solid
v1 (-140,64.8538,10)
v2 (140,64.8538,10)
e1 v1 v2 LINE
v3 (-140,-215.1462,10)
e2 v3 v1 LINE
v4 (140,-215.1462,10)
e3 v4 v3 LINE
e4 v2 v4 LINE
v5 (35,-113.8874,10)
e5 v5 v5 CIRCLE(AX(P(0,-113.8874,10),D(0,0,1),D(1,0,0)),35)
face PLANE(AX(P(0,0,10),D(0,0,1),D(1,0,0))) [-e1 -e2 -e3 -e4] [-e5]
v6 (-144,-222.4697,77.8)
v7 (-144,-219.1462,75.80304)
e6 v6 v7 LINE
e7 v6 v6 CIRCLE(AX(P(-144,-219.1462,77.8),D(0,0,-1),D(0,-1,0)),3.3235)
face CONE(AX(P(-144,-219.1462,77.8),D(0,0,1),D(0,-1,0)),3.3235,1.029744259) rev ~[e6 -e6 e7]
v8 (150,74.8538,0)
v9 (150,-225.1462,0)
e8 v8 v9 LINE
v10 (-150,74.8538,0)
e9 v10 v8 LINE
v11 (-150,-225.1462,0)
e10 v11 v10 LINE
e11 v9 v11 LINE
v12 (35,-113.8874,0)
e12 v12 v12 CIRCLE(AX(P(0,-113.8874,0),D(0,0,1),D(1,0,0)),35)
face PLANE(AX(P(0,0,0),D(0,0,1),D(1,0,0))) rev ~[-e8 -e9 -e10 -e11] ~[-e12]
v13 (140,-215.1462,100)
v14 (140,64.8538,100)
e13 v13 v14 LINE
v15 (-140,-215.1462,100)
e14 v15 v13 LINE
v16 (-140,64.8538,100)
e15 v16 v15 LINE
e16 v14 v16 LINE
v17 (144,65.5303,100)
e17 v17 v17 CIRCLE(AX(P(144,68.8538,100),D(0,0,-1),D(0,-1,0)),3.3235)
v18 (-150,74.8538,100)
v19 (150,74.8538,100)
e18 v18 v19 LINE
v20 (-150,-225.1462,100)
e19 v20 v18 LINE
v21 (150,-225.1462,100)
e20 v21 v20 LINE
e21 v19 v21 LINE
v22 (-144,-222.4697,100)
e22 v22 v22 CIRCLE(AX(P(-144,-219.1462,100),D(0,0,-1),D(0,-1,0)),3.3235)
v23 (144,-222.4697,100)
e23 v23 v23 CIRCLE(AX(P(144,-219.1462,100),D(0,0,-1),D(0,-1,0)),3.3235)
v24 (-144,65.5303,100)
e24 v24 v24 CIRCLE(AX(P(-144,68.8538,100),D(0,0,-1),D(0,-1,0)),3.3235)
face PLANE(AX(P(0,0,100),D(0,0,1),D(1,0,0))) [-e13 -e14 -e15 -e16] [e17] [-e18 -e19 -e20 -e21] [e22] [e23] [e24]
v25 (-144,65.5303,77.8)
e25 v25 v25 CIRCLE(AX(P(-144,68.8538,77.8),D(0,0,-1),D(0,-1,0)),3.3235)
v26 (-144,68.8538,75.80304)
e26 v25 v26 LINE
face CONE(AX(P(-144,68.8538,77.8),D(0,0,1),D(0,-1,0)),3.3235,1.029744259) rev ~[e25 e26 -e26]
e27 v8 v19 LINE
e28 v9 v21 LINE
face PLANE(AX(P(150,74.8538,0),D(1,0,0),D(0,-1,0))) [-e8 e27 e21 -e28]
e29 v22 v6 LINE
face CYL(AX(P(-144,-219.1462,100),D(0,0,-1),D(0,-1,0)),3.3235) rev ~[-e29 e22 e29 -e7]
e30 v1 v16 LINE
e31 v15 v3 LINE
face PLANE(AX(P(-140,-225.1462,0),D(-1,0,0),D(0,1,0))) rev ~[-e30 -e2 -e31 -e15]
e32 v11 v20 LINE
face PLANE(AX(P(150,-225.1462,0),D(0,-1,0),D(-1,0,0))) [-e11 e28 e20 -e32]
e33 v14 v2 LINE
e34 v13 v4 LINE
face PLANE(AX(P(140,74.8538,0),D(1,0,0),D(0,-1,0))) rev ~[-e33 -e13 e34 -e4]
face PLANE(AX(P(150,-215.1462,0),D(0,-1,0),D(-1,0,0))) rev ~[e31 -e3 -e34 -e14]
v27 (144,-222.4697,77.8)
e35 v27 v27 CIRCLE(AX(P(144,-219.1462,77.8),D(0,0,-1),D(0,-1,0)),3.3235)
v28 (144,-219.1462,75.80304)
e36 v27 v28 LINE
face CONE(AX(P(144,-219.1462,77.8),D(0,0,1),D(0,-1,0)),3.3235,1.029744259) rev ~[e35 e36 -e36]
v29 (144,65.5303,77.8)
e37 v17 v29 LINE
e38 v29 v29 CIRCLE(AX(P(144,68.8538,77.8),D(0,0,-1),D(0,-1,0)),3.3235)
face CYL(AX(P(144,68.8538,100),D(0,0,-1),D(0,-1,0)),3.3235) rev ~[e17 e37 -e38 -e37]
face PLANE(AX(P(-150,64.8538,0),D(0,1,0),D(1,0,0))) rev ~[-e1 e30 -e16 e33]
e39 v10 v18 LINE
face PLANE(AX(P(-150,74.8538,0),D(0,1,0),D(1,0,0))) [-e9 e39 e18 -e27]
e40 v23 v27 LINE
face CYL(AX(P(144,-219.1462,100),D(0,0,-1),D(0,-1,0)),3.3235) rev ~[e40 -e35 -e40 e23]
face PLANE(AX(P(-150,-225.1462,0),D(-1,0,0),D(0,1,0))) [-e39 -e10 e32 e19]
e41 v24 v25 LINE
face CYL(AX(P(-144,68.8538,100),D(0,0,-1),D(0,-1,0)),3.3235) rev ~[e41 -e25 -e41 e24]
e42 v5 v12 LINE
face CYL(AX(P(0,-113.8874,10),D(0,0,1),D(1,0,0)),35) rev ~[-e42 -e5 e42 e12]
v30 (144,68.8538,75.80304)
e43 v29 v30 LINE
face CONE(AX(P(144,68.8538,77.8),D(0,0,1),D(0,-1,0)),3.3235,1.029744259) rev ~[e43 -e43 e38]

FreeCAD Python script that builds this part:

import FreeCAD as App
import Part
import Sketcher
Q = App.Units.Quantity


def faces_at(feature, points):
    """Names of the faces that lie closest to the given points."""
    faces = feature.Shape.Faces
    near = lambda p: min(range(len(faces)), key=lambda i: faces[i].distToShape(Part.Vertex(*p))[0])
    return sorted({f"Face{near(p) + 1}" for p in points})

doc = App.newDocument("Part")
params = doc.addObject("Spreadsheet::Sheet", "Params")
for row, (alias, value) in enumerate([
    ("sketch1_width", "300 mm"),
    ("pad1_length", "100 mm"),
    ("thickness_wall", "10 mm"),
    ("sketch2_diameter", "70 mm"),
    ("hole_diameter", "6.647 mm"),
    ("hole_depth", "22.2 mm"),
], start=1):
    params.set(f"A{row}", alias)
    params.set(f"B{row}", "=" + value)
    params.setAlias(f"B{row}", alias)

body = doc.addObject("PartDesign::Body", "Body")

sketch1 = doc.addObject("Sketcher::SketchObject", "Sketch")
body.addObject(sketch1)
sketch1.AttachmentSupport = (doc.XY_Plane, [""])
sketch1.MapMode = "FlatFace"
sketch1.addGeometry([
    Part.LineSegment(App.Vector(150, 74.8538, 0), App.Vector(-150, 74.8538, 0)),
    Part.LineSegment(App.Vector(-150, 74.8538, 0), App.Vector(-150, -225.1462, 0)),
    Part.LineSegment(App.Vector(-150, -225.1462, 0), App.Vector(150, -225.1462, 0)),
    Part.LineSegment(App.Vector(150, -225.1462, 0), App.Vector(150, 74.8538, 0)),
], False)
sketch1.addConstraint([
    Sketcher.Constraint("Coincident", 0, 2, 1, 1),
    Sketcher.Constraint("Coincident", 1, 2, 2, 1),
    Sketcher.Constraint("Coincident", 2, 2, 3, 1),
    Sketcher.Constraint("Coincident", 3, 2, 0, 1),
    Sketcher.Constraint("Horizontal", 0),
    Sketcher.Constraint("Vertical", 1),
    Sketcher.Constraint("Horizontal", 2),
    Sketcher.Constraint("Vertical", 3),
    Sketcher.Constraint("Equal", 2, 1),
    Sketcher.Constraint("DistanceX", 0, 2, 0, 1, Q("300 mm")),
    Sketcher.Constraint("DistanceX", 0, 2, -1, 1, Q("150 mm")),
    Sketcher.Constraint("DistanceY", -1, 1, 0, 2, Q("74.8538 mm")),
])
sketch1.setExpression("Constraints[9]", "Params.sketch1_width")
pad1 = doc.addObject("PartDesign::Pad", "Pad")
body.addObject(pad1)
pad1.Profile = sketch1
pad1.setExpression("Length", "Params.pad1_length")
doc.recompute()

thickness = doc.addObject("PartDesign::Thickness", "Thickness")
body.addObject(thickness)
thickness.Base = (pad1, faces_at(pad1, [(-50, -25.146, 100)]))
thickness.setExpression("Value", "Params.thickness_wall")
thickness.Reversed = True
thickness.Join = "Intersection"

sketch2 = doc.addObject("Sketcher::SketchObject", "Sketch001")
body.addObject(sketch2)
sketch2.AttachmentSupport = (doc.XY_Plane, [""])
sketch2.MapMode = "FlatFace"
sketch2.AttachmentOffset = App.Placement(App.Vector(0, 0, 10), App.Rotation())
sketch2.addGeometry(Part.Circle(App.Vector(0, -113.8874, 0), App.Vector(0, 0, 1), 35), False)
sketch2.addConstraint([
    Sketcher.Constraint("PointOnObject", 0, 3, -2),
    Sketcher.Constraint("Diameter", 0, Q("70 mm")),
    Sketcher.Constraint("DistanceY", 0, 3, -1, 1, Q("113.8874 mm")),
])
sketch2.setExpression("Constraints[1]", "Params.sketch2_diameter")
pocket1 = doc.addObject("PartDesign::Pocket", "Pocket")
body.addObject(pocket1)
pocket1.Profile = sketch2
pocket1.Type = "UpToFirst"

sketch3 = doc.addObject("Sketcher::SketchObject", "Sketch002")
body.addObject(sketch3)
sketch3.AttachmentSupport = (doc.XY_Plane, [""])
sketch3.MapMode = "FlatFace"
sketch3.AttachmentOffset = App.Placement(App.Vector(0, 0, 100), App.Rotation())
sketch3.addGeometry([
    Part.Circle(App.Vector(-144, 68.8538, 0), App.Vector(0, 0, 1), 3.3235),
    Part.Circle(App.Vector(144, 68.8538, 0), App.Vector(0, 0, 1), 3.3235),
    Part.Circle(App.Vector(144, -219.1462, 0), App.Vector(0, 0, 1), 3.3235),
    Part.Circle(App.Vector(-144, -219.1462, 0), App.Vector(0, 0, 1), 3.3235),
], False)
sketch3.addConstraint([
    Sketcher.Constraint("Equal", 0, 1),
    Sketcher.Constraint("Equal", 1, 2),
    Sketcher.Constraint("Equal", 2, 3),
    Sketcher.Constraint("Symmetric", 0, 3, 1, 3, -2),
    Sketcher.Constraint("Symmetric", 2, 3, 3, 3, -2),
    Sketcher.Constraint("Vertical", 1, 3, 2, 3),
    Sketcher.Constraint("Diameter", 0, Q("6.647 mm")),
    Sketcher.Constraint("DistanceX", 0, 3, -1, 1, Q("144 mm")),
    Sketcher.Constraint("DistanceY", 2, 3, 1, 3, Q("288 mm")),
    Sketcher.Constraint("DistanceY", -1, 1, 0, 3, Q("68.8538 mm")),
])
doc.recompute()
hole = doc.addObject("PartDesign::Hole", "Hole")
body.addObject(hole)
hole.Profile = sketch3
hole.ThreadType = "None"
hole.setExpression("Diameter", "Params.hole_diameter")
hole.DepthType = "Dimension"
hole.setExpression("Depth", "Params.hole_depth")
hole.DrillPoint = "Angled"
hole.DrillPointAngle = 118

doc.recompute()
